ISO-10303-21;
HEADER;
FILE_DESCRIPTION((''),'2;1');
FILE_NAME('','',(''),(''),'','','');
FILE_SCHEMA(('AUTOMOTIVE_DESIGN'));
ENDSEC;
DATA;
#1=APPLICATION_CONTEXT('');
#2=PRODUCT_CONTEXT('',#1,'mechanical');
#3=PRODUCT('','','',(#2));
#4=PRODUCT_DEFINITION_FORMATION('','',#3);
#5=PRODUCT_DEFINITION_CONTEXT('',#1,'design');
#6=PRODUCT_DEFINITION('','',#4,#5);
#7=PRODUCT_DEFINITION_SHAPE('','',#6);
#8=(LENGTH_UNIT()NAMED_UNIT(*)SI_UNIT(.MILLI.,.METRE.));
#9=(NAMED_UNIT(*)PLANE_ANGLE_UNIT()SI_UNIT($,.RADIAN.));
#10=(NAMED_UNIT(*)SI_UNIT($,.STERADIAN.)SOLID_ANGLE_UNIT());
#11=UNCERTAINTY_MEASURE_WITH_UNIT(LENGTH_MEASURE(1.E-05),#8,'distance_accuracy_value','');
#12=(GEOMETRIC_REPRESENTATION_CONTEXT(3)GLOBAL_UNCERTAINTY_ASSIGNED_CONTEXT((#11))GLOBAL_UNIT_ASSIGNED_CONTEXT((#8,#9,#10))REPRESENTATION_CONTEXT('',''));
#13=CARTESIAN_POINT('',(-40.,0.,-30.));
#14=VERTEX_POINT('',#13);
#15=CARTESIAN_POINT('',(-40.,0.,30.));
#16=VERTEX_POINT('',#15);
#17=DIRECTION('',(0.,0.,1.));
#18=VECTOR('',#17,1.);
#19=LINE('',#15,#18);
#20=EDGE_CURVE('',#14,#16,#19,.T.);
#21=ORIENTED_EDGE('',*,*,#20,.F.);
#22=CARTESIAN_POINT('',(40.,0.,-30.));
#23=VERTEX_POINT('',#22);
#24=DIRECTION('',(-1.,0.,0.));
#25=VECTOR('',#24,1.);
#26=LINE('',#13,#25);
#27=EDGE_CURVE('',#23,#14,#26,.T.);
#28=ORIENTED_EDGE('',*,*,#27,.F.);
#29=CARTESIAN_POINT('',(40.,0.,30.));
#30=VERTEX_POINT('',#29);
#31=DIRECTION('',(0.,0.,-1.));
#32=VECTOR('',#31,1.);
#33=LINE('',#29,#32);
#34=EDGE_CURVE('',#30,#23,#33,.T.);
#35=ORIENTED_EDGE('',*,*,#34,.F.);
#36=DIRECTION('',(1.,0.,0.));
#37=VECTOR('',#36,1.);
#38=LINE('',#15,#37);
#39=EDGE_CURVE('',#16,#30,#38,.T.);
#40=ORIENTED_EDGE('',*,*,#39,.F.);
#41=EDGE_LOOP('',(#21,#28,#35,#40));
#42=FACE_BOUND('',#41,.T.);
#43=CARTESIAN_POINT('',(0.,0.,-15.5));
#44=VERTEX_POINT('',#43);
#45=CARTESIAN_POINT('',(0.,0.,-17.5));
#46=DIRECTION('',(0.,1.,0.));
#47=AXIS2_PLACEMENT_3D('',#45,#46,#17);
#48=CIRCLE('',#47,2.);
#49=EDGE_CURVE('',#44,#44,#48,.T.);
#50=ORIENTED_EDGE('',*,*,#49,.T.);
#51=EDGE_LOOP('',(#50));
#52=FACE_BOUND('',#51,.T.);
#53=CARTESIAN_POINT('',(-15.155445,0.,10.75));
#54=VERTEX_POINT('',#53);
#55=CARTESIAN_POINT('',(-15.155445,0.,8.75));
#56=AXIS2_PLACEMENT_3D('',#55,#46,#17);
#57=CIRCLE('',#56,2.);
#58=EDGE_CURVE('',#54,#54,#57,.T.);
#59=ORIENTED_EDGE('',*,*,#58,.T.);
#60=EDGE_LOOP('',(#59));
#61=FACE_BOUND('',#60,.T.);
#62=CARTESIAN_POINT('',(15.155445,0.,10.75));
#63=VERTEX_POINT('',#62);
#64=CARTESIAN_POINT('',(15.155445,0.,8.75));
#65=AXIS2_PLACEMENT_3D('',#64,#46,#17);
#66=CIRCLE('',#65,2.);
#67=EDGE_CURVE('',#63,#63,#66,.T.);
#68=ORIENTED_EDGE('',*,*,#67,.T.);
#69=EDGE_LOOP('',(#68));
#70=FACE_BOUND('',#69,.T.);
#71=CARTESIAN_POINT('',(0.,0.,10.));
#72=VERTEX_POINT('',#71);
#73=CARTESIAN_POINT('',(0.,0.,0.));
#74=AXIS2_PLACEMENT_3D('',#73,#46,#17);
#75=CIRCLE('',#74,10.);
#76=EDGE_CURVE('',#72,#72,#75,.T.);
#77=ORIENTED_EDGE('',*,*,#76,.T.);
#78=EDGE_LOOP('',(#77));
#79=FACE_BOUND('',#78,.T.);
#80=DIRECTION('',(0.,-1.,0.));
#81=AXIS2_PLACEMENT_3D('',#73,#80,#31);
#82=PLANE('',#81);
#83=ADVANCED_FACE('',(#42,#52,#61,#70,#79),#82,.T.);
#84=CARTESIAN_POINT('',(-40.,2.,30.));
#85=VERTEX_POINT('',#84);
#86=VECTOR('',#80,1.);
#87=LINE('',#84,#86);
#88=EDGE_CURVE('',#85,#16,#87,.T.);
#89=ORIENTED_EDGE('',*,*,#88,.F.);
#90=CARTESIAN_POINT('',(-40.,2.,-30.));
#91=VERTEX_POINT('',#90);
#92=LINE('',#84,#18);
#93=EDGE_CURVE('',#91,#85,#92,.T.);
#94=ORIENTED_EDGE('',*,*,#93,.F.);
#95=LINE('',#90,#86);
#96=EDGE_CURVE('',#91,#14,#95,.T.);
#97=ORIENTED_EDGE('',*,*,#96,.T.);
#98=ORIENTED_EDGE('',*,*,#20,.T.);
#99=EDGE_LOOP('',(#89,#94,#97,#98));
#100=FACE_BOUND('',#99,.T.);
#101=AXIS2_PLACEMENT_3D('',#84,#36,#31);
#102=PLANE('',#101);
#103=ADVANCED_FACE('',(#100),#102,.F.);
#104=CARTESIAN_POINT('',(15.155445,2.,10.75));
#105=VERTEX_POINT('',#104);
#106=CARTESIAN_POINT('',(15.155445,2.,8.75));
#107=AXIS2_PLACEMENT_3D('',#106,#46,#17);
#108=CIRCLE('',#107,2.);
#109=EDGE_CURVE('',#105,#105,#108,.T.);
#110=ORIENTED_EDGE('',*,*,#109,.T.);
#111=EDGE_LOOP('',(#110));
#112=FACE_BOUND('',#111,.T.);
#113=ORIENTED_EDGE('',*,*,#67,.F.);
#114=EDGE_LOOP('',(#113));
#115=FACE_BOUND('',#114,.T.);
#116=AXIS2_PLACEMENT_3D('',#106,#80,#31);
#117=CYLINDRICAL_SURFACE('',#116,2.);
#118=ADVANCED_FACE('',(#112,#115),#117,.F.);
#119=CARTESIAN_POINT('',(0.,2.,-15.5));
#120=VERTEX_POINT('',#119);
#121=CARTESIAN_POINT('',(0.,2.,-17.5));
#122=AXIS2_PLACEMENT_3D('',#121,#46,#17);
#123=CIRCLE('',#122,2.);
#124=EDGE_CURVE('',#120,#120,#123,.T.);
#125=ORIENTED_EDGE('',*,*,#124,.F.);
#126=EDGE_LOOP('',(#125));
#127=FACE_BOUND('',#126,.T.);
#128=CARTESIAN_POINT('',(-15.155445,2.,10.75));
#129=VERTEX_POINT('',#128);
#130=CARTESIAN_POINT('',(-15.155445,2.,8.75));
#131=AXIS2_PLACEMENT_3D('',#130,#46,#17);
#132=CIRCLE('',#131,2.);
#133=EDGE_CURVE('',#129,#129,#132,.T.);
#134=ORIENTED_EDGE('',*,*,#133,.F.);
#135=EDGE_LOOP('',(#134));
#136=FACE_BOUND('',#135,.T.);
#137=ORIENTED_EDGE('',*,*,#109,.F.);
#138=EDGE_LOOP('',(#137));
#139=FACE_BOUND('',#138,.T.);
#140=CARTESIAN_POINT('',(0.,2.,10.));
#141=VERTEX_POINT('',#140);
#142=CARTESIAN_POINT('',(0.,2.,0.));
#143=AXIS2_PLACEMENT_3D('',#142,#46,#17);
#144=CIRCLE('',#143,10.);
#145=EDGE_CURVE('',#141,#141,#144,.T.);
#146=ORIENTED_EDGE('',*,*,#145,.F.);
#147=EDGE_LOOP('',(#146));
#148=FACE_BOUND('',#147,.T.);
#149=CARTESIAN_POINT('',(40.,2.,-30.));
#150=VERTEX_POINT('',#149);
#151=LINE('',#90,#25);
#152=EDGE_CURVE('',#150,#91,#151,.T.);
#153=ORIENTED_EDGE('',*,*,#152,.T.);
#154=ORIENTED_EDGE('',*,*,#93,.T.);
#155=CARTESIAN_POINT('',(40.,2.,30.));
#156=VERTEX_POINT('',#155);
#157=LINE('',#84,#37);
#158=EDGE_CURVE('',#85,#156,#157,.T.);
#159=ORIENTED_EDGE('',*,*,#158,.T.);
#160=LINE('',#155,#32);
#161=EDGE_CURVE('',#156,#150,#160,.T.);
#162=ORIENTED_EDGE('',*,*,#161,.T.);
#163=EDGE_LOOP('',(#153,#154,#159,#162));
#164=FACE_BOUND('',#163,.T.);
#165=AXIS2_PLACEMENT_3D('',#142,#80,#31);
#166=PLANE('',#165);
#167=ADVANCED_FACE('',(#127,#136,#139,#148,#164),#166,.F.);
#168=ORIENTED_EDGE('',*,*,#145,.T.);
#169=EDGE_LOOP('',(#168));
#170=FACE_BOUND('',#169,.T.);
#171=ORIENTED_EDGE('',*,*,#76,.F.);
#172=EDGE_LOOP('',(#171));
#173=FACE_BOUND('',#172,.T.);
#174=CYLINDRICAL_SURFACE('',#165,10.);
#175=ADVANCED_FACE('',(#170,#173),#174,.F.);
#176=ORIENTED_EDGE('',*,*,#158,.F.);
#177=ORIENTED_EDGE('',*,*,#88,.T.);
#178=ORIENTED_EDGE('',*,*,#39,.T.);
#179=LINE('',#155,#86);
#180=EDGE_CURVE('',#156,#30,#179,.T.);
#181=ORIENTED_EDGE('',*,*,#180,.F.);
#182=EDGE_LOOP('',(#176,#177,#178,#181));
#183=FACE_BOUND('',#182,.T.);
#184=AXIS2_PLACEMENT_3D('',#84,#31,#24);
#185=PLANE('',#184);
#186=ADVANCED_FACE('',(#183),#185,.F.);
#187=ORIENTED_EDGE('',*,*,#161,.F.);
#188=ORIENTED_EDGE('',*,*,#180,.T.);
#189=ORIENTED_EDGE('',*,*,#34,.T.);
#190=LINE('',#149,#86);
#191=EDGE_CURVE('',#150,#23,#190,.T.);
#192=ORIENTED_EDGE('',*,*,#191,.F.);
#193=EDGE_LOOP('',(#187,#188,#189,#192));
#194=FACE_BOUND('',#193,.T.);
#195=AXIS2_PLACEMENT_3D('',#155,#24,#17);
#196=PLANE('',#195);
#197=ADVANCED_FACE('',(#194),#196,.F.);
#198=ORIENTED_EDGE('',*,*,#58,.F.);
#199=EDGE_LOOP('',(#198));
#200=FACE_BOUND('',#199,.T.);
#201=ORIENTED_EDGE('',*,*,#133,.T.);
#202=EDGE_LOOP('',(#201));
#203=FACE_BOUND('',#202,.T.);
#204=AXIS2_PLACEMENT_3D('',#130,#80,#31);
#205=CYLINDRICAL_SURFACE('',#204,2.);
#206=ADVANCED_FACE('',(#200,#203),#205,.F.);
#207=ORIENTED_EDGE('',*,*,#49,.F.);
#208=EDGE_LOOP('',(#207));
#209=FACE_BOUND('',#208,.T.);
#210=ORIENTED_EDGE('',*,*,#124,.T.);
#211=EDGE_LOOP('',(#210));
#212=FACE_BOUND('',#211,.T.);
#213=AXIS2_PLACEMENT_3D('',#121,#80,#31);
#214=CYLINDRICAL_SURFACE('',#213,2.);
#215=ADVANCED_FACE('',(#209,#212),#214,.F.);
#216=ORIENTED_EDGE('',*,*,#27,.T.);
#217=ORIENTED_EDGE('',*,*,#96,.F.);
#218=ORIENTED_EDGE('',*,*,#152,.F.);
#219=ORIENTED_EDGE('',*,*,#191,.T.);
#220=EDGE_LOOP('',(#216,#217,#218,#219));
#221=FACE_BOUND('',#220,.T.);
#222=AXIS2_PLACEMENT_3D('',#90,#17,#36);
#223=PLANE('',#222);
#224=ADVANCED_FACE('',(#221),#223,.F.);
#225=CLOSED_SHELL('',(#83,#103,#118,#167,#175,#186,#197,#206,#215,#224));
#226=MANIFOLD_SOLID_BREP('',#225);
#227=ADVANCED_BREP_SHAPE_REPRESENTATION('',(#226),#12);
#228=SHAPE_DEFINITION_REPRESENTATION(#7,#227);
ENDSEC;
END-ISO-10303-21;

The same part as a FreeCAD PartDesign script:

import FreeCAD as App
import Part
import Sketcher


def add_polygon(sketch, points):
    """Adds a closed chain of lines whose ends are joined by coincident constraints."""
    first, n = sketch.GeometryCount, len(points)
    for a, b in zip(points, points[1:] + points[:1]):
        sketch.addGeometry(Part.LineSegment(App.Vector(*a, 0), App.Vector(*b, 0)), False)
    for i in range(n):
        sketch.addConstraint(Sketcher.Constraint("Coincident", first + i, 2, first + (i + 1) % n, 1))

doc = App.newDocument("Part")
body = doc.addObject("PartDesign::Body", "Body")

sketch1 = body.newObject("Sketcher::SketchObject", "Sketch")
sketch1.AttachmentSupport = (doc.getObject("XZ_Plane"), [""])
sketch1.MapMode = "FlatFace"
add_polygon(sketch1, [(-40, -30), (-40, 30), (40, 30), (40, -30)])
sketch1.addGeometry(Part.Circle(App.Vector(-15.155445, 8.75, 0), App.Vector(0, 0, 1), 2), False)
sketch1.addGeometry(Part.Circle(App.Vector(15.155445, 8.75, 0), App.Vector(0, 0, 1), 2), False)
sketch1.addGeometry(Part.Circle(App.Vector(0, 0, 0), App.Vector(0, 0, 1), 10), False)
sketch1.addGeometry(Part.Circle(App.Vector(0, -17.5, 0), App.Vector(0, 0, 1), 2), False)
sketch1.addConstraint(Sketcher.Constraint("Vertical", 0))
sketch1.addConstraint(Sketcher.Constraint("Horizontal", 1))
sketch1.addConstraint(Sketcher.Constraint("Vertical", 2))
sketch1.addConstraint(Sketcher.Constraint("Horizontal", 3))
sketch1.addConstraint(Sketcher.Constraint("Coincident", 6, 3, -1, 1))
sketch1.addConstraint(Sketcher.Constraint("Equal", 4, 5))
sketch1.addConstraint(Sketcher.Constraint("Equal", 5, 7))
sketch1.addConstraint(Sketcher.Constraint("Symmetric", 0, 2, 2, 2, -1, 1))
sketch1.addConstraint(Sketcher.Constraint("Symmetric", 4, 3, 5, 3, -2))
sketch1.addConstraint(Sketcher.Constraint("PointOnObject", 7, 3, -2))
sketch1.addConstraint(Sketcher.Constraint("Diameter", 4, 4.0))
sketch1.addConstraint(Sketcher.Constraint("Diameter", 6, 20.0))
sketch1.addConstraint(Sketcher.Constraint("DistanceX", 1, 1, 1, 2, 80.0))
sketch1.addConstraint(Sketcher.Constraint("DistanceY", 0, 1, 0, 2, 60.0))
sketch1.addConstraint(Sketcher.Constraint("DistanceY", 7, 3, -1, 1, 17.5))
sketch1.addConstraint(Sketcher.Constraint("DistanceY", -1, 1, 4, 3, 8.75))
sketch1.addConstraint(Sketcher.Constraint("DistanceX", 4, 3, 5, 3, 30.310889))
pad1 = body.newObject("PartDesign::Pad", "Pad")
pad1.Profile = sketch1
pad1.Length = 2
pad1.Reversed = True

doc.recompute()
